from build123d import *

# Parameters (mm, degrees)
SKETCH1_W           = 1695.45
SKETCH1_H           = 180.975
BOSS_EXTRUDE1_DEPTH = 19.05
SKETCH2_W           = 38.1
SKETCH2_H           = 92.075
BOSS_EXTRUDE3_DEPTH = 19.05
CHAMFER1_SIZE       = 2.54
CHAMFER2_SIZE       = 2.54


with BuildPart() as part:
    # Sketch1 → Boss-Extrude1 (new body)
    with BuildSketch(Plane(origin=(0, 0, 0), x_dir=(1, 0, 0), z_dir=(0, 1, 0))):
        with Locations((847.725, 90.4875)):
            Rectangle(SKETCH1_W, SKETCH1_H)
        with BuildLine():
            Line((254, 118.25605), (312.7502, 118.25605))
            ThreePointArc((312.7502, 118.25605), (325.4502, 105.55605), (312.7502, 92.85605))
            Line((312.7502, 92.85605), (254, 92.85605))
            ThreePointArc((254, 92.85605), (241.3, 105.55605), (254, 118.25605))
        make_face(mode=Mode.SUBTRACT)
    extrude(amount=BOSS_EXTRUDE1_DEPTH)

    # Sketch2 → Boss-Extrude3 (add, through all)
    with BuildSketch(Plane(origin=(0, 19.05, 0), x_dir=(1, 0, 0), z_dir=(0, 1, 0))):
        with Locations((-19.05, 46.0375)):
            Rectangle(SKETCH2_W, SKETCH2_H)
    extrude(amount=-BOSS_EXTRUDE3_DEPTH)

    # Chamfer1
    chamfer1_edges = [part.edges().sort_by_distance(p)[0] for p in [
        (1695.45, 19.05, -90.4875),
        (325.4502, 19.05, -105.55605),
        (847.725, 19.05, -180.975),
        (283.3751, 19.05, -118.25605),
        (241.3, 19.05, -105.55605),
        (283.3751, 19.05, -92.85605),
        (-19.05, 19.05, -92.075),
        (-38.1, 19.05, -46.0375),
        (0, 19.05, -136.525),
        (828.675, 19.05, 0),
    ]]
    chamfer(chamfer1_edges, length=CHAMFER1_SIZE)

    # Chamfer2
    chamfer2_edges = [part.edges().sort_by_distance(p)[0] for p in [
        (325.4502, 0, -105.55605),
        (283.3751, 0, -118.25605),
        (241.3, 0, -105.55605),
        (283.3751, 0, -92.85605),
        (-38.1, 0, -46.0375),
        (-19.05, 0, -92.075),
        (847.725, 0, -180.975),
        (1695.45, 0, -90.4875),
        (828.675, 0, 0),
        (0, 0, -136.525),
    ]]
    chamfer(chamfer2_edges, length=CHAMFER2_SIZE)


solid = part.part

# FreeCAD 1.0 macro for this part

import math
import FreeCAD as App
import Part
import Sketcher
from FreeCAD import Vector
Q = App.Units.Quantity


def edges_at(feature, points):
    """Names of the edges that pass closest to the given points."""
    edges = feature.Shape.Edges
    near = lambda p: min(range(len(edges)), key=lambda i: edges[i].distToShape(Part.Vertex(*p))[0])
    return sorted({f"Edge{near(p) + 1}" for p in points})

doc = App.newDocument("Part")
body = doc.addObject("PartDesign::Body", "Body")

sketch1 = body.newObject("Sketcher::SketchObject", "Sketch")
sketch1.AttachmentSupport = (doc.getObject("XZ_Plane"), [""])
sketch1.MapMode = "FlatFace"
sketch1.addGeometry([
    Part.LineSegment(Vector(0, -181, 0), Vector(0, 0, 0)),
    Part.LineSegment(Vector(0, 0, 0), Vector(1695, 0, 0)),
    Part.LineSegment(Vector(1695, 0, 0), Vector(1695, -181, 0)),
    Part.LineSegment(Vector(1695, -181, 0), Vector(0, -181, 0)),
    Part.ArcOfCircle(Part.Circle(Vector(254, -106, 0), Vector(0, 0, 1), 13), math.radians(90), math.radians(270)),
    Part.LineSegment(Vector(254, -118, 0), Vector(313, -118, 0)),
    Part.ArcOfCircle(Part.Circle(Vector(313, -106, 0), Vector(0, 0, 1), 13), math.radians(-90), math.radians(90)),
    Part.LineSegment(Vector(313, -93, 0), Vector(254, -93, 0)),
], False)
sketch1.addConstraint([
    Sketcher.Constraint("Coincident", 0, 2, 1, 1),
    Sketcher.Constraint("Coincident", 1, 2, 2, 1),
    Sketcher.Constraint("Coincident", 2, 2, 3, 1),
    Sketcher.Constraint("Coincident", 3, 2, 0, 1),
    Sketcher.Constraint("Tangent", 4, 2, 5, 1),
    Sketcher.Constraint("Tangent", 5, 2, 6, 1),
    Sketcher.Constraint("Tangent", 6, 2, 7, 1),
    Sketcher.Constraint("Tangent", 7, 2, 4, 1),
    Sketcher.Constraint("Vertical", 0),
    Sketcher.Constraint("Horizontal", 1),
    Sketcher.Constraint("Vertical", 2),
    Sketcher.Constraint("Horizontal", 3),
    Sketcher.Constraint("Horizontal", 5),
    Sketcher.Constraint("Horizontal", 7),
    Sketcher.Constraint("Coincident", 0, 2, -1, 1),
    Sketcher.Constraint("Radius", 4, Q("0.5 in")),
    Sketcher.Constraint("DistanceX", -1, 1, 4, 3, Q("10 in")),
    Sketcher.Constraint("DistanceX", 1, 1, 1, 2, Q("66.75 in")),
    Sketcher.Constraint("DistanceX", 5, 1, 5, 2, Q("2.313 in")),
    Sketcher.Constraint("DistanceY", 0, 1, 0, 2, Q("7.125 in")),
    Sketcher.Constraint("DistanceY", 4, 3, -1, 1, Q("105.55605 mm")),
])
pad1 = body.newObject("PartDesign::Pad", "Pad")
pad1.Profile = sketch1
pad1.Length = Q("0.75 in")
pad1.Reversed = True

sketch2 = body.newObject("Sketcher::SketchObject", "Sketch001")
sketch2.AttachmentSupport = (doc.getObject("XZ_Plane"), [""])
sketch2.MapMode = "FlatFace"
sketch2.AttachmentOffset = App.Placement(Vector(0, 0, -0.75 * 25.4), App.Rotation())
sketch2.addGeometry([
    Part.LineSegment(Vector(-38, -92, 0), Vector(-38, 0, 0)),
    Part.LineSegment(Vector(-38, 0, 0), Vector(0, 0, 0)),
    Part.LineSegment(Vector(0, 0, 0), Vector(0, -92, 0)),
    Part.LineSegment(Vector(0, -92, 0), Vector(-38, -92, 0)),
], False)
sketch2.addConstraint([
    Sketcher.Constraint("Coincident", 0, 2, 1, 1),
    Sketcher.Constraint("Coincident", 1, 2, 2, 1),
    Sketcher.Constraint("Coincident", 2, 2, 3, 1),
    Sketcher.Constraint("Coincident", 3, 2, 0, 1),
    Sketcher.Constraint("Vertical", 0),
    Sketcher.Constraint("Horizontal", 1),
    Sketcher.Constraint("Vertical", 2),
    Sketcher.Constraint("Horizontal", 3),
    Sketcher.Constraint("Coincident", 1, 2, -1, 1),
    Sketcher.Constraint("DistanceX", 1, 1, 1, 2, Q("1.5 in")),
    Sketcher.Constraint("DistanceY", 0, 1, 0, 2, Q("3.625 in")),
])
pad2 = body.newObject("PartDesign::Pad", "Pad001")
pad2.Profile = sketch2
pad2.Length = Q("0.75 in")
doc.recompute()

chamfer = body.newObject("PartDesign::Chamfer", "Chamfer")
chamfer.Base = (pad2, edges_at(pad2, [
    (1695.45, 19.05, -90.487),
    (325.45, 19.05, -105.556),
    (847.725, 19.05, -180.975),
    (283.375, 19.05, -118.256),
    (241.3, 19.05, -105.556),
    (283.375, 19.05, -92.856),
    (-19.05, 19.05, -92.075),
    (-38.1, 19.05, -46.038),
    (0, 19.05, -136.525),
    (828.675, 19.05, 0),
]))
chamfer.Size = Q("0.1 in")
doc.recompute()

chamfer2 = body.newObject("PartDesign::Chamfer", "Chamfer001")
chamfer2.Base = (chamfer, edges_at(chamfer, [
    (325.45, 0, -105.556),
    (283.375, 0, -118.256),
    (241.3, 0, -105.556),
    (283.375, 0, -92.856),
    (-38.1, 0, -46.038),
    (-19.05, 0, -92.075),
    (847.725, 0, -180.975),
    (1695.45, 0, -90.487),
    (828.675, 0, 0),
    (0, 0, -136.525),
]))
chamfer2.Size = Q("0.1 in")

doc.recompute()
